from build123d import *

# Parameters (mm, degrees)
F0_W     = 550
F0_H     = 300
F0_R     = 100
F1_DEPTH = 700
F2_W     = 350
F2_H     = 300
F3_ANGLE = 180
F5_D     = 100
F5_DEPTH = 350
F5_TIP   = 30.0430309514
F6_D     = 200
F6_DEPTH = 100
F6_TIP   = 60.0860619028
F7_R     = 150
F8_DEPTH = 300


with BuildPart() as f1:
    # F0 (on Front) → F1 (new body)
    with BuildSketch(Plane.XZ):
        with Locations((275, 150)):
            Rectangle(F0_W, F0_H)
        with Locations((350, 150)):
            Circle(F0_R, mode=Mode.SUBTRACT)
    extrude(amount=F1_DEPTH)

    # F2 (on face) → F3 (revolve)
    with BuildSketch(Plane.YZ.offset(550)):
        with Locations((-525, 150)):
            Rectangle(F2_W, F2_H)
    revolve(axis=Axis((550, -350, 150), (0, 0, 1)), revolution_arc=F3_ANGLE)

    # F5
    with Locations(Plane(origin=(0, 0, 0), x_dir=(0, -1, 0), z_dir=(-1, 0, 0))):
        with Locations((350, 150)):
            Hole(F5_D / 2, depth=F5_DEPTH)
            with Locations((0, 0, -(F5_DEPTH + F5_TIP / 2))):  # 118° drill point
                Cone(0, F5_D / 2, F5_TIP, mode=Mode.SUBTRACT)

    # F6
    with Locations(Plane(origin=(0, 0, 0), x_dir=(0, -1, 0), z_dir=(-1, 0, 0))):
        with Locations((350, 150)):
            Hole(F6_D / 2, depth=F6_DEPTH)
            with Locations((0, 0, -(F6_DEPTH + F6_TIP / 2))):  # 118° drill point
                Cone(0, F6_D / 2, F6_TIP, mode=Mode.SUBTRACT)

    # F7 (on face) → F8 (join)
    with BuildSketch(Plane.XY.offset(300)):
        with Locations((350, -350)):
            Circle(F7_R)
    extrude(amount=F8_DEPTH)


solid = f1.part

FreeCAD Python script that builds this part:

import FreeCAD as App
import Part
import Sketcher
Q = App.Units.Quantity


def add_polygon(sketch, points):
    """Adds a closed chain of lines whose ends are joined by coincident constraints."""
    first, n = sketch.GeometryCount, len(points)
    for a, b in zip(points, points[1:] + points[:1]):
        sketch.addGeometry(Part.LineSegment(App.Vector(*a, 0), App.Vector(*b, 0)), False)
    for i in range(n):
        sketch.addConstraint(Sketcher.Constraint("Coincident", first + i, 2, first + (i + 1) % n, 1))

doc = App.newDocument("Part")
body = doc.addObject("PartDesign::Body", "Body")

# Sketch on XZ plane
sketch1 = doc.addObject("Sketcher::SketchObject", "Sketch")
body.addObject(sketch1)
sketch1.AttachmentSupport = (doc.XZ_Plane, [""])
sketch1.MapMode = "FlatFace"
add_polygon(sketch1, [(0, 300), (0, 0), (550, 0), (550, 300)])  # lines 0-3
sketch1.addGeometry(Part.Circle(App.Vector(350, 150, 0), App.Vector(0, 0, 1), 100), False)  # 4
sketch1.addConstraint([
    Sketcher.Constraint("Vertical", 0),
    Sketcher.Constraint("Horizontal", 1),
    Sketcher.Constraint("Vertical", 2),
    Sketcher.Constraint("Horizontal", 3),
    Sketcher.Constraint("Coincident", 0, 2, -1, 1),
    Sketcher.Constraint("Diameter", 4, Q("200 mm")),
    Sketcher.Constraint("DistanceX", 1, 1, 1, 2, Q("550 mm")),
    Sketcher.Constraint("DistanceY", 0, 2, 0, 1, Q("300 mm")),
    Sketcher.Constraint("DistanceX", -1, 1, 4, 3, Q("350 mm")),
    Sketcher.Constraint("DistanceY", -1, 1, 4, 3, Q("150 mm")),
])
pad1 = doc.addObject("PartDesign::Pad", "Pad")
body.addObject(pad1)
pad1.Profile = sketch1
pad1.Length = 700

# Sketch on YZ plane
sketch2 = doc.addObject("Sketcher::SketchObject", "Sketch001")
body.addObject(sketch2)
sketch2.AttachmentSupport = (doc.YZ_Plane, [""])
sketch2.MapMode = "FlatFace"
sketch2.AttachmentOffset = App.Placement(App.Vector(0, 0, 550), App.Rotation())
add_polygon(sketch2, [(-700, 300), (-700, 0), (-350, 0), (-350, 300)])  # lines 0-3
sketch2.addGeometry(Part.LineSegment(App.Vector(-350, 0, 0), App.Vector(-350, 300, 0)), True)  # axis
sketch2.addConstraint([
    Sketcher.Constraint("Vertical", 0),
    Sketcher.Constraint("Horizontal", 1),
    Sketcher.Constraint("Vertical", 2),
    Sketcher.Constraint("Horizontal", 3),
    Sketcher.Constraint("Vertical", 4),
    Sketcher.Constraint("Coincident", 4, 1, 1, 2),
    Sketcher.Constraint("PointOnObject", 0, 2, -1),
    Sketcher.Constraint("Horizontal", 3, 2, 4, 2),
    Sketcher.Constraint("DistanceX", 1, 1, 1, 2, Q("350 mm")),
    Sketcher.Constraint("DistanceY", 0, 2, 0, 1, Q("300 mm")),
    Sketcher.Constraint("DistanceX", 0, 2, -1, 1, Q("700 mm")),
])
revolution = doc.addObject("PartDesign::Revolution", "Revolution")
body.addObject(revolution)
revolution.Profile = sketch2
revolution.ReferenceAxis = (sketch2, ["Axis0"])
revolution.Angle = 180

# Sketch on YZ plane
sketch3 = doc.addObject("Sketcher::SketchObject", "Sketch002")
body.addObject(sketch3)
sketch3.AttachmentSupport = (doc.YZ_Plane, [""])
sketch3.MapMode = "FlatFace"
sketch3.addGeometry(Part.Circle(App.Vector(-350, 150, 0), App.Vector(0, 0, 1), 50), False)
sketch3.addConstraint([
    Sketcher.Constraint("Diameter", 0, Q("100 mm")),
    Sketcher.Constraint("DistanceX", 0, 3, -1, 1, Q("350 mm")),
    Sketcher.Constraint("DistanceY", -1, 1, 0, 3, Q("150 mm")),
])
doc.recompute()
hole = doc.addObject("PartDesign::Hole", "Hole")
body.addObject(hole)
hole.Profile = sketch3
hole.ThreadType = "None"
hole.Diameter = 100
hole.DepthType = "Dimension"
hole.Depth = 350
hole.DrillPoint = "Angled"
hole.DrillPointAngle = 118
hole.Reversed = True

# Sketch on YZ plane
sketch4 = doc.addObject("Sketcher::SketchObject", "Sketch003")
body.addObject(sketch4)
sketch4.AttachmentSupport = (doc.YZ_Plane, [""])
sketch4.MapMode = "FlatFace"
sketch4.addGeometry(Part.Circle(App.Vector(-350, 150, 0), App.Vector(0, 0, 1), 100), False)
sketch4.addConstraint([
    Sketcher.Constraint("Diameter", 0, Q("200 mm")),
    Sketcher.Constraint("DistanceX", 0, 3, -1, 1, Q("350 mm")),
    Sketcher.Constraint("DistanceY", -1, 1, 0, 3, Q("150 mm")),
])
doc.recompute()
hole2 = doc.addObject("PartDesign::Hole", "Hole001")
body.addObject(hole2)
hole2.Profile = sketch4
hole2.ThreadType = "None"
hole2.Diameter = 200
hole2.DepthType = "Dimension"
hole2.Depth = 100
hole2.DrillPoint = "Angled"
hole2.DrillPointAngle = 118
hole2.Reversed = True

# Sketch on XY plane
sketch5 = doc.addObject("Sketcher::SketchObject", "Sketch004")
body.addObject(sketch5)
sketch5.AttachmentSupport = (doc.XY_Plane, [""])
sketch5.MapMode = "FlatFace"
sketch5.AttachmentOffset = App.Placement(App.Vector(0, 0, 300), App.Rotation())
sketch5.addGeometry(Part.Circle(App.Vector(350, -350, 0), App.Vector(0, 0, 1), 150), False)
sketch5.addConstraint([
    Sketcher.Constraint("Diameter", 0, Q("300 mm")),
    Sketcher.Constraint("DistanceX", -1, 1, 0, 3, Q("350 mm")),
    Sketcher.Constraint("DistanceY", 0, 3, -1, 1, Q("350 mm")),
])
pad2 = doc.addObject("PartDesign::Pad", "Pad001")
body.addObject(pad2)
pad2.Profile = sketch5
pad2.Length = 300

doc.recompute()
